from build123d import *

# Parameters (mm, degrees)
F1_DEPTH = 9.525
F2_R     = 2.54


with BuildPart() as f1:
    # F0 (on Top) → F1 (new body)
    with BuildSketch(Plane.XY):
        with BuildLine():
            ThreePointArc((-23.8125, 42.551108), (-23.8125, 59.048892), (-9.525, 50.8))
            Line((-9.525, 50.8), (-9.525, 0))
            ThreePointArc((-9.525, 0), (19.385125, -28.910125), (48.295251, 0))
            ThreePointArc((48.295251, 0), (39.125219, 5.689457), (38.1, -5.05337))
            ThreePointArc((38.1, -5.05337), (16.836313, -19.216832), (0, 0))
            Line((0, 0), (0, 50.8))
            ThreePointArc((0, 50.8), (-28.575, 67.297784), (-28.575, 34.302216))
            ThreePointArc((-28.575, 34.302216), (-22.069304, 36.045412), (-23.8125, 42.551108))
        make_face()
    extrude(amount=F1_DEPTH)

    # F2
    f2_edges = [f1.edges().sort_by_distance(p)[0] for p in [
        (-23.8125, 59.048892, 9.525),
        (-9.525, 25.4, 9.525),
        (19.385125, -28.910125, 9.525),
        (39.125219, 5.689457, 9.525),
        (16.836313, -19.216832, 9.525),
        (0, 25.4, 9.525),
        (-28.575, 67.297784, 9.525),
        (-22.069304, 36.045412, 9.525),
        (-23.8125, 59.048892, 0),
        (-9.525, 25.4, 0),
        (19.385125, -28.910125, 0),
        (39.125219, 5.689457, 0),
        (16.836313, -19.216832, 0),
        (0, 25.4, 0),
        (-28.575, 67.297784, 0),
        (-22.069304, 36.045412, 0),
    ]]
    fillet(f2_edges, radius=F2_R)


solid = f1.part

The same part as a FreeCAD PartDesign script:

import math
import FreeCAD as App
import Part
import Sketcher
from FreeCAD import Vector
Q = App.Units.Quantity


def edges_at(feature, points):
    """Names of the edges that pass closest to the given points."""
    edges = feature.Shape.Edges
    near = lambda p: min(range(len(edges)), key=lambda i: edges[i].distToShape(Part.Vertex(*p))[0])
    return sorted({f"Edge{near(p) + 1}" for p in points})

doc = App.newDocument("Part")
body = doc.addObject("PartDesign::Body", "Body")

# Sketch on XY plane
sketch1 = doc.addObject("Sketcher::SketchObject", "Sketch")
body.addObject(sketch1)
sketch1.AttachmentSupport = (doc.XY_Plane, [""])
sketch1.MapMode = "FlatFace"
sketch1.addGeometry([
    Part.ArcOfCircle(Part.Circle(Vector(-19.1, 50.8, 0), Vector(0, 0, 1), 9.5), math.radians(0), math.radians(240)),  # 0
    Part.LineSegment(Vector(-9.5, 50.8, 0), Vector(-9.5, 0, 0)),  # 1
    Part.ArcOfCircle(Part.Circle(Vector(19.4, 0, 0), Vector(0, 0, 1), 28.9), math.radians(-180), math.radians(0)),  # 2
    Part.ArcOfCircle(Part.Circle(Vector(41.9, 0, 0), Vector(0, 0, 1), 6.4), math.radians(0), math.radians(233)),  # 3
    Part.ArcOfCircle(Part.Circle(Vector(19.4, 0, 0), Vector(0, 0, 1), 19.4), math.radians(-180), math.radians(-15)),  # 4
    Part.LineSegment(Vector(0, 0, 0), Vector(0, 50.8, 0)),  # 5
    Part.ArcOfCircle(Part.Circle(Vector(-19.1, 50.8, 0), Vector(0, 0, 1), 19.1), math.radians(0), math.radians(240)),  # 6
    Part.ArcOfCircle(Part.Circle(Vector(-26.2, 38.4, 0), Vector(0, 0, 1), 4.8), math.radians(-120), math.radians(60)),  # 7
], False)
sketch1.addConstraint([
    Sketcher.Constraint("Tangent", 0, 1, 1, 1),
    Sketcher.Constraint("Tangent", 1, 2, 2, 1),
    Sketcher.Constraint("Tangent", 2, 2, 3, 1),
    Sketcher.Constraint("Coincident", 3, 2, 4, 2),
    Sketcher.Constraint("Tangent", 4, 1, 5, 1),
    Sketcher.Constraint("Tangent", 5, 2, 6, 1),
    Sketcher.Constraint("Tangent", 6, 2, 7, 1),
    Sketcher.Constraint("Tangent", 7, 2, 0, 2),
    Sketcher.Constraint("Vertical", 1),
    Sketcher.Constraint("Vertical", 5),
    Sketcher.Constraint("Coincident", 4, 1, -1, 1),
    Sketcher.Constraint("Coincident", 4, 3, 2, 3),
    Sketcher.Constraint("Coincident", 6, 3, 0, 3),
    Sketcher.Constraint("PointOnObject", 3, 3, -1),
    Sketcher.Constraint("DistanceY", 1, 2, 1, 1, Q("2 in")),
    Sketcher.Constraint("Radius", 3, Q("0.25 in")),
    Sketcher.Constraint("Radius", 6, Q("0.75 in")),
    Sketcher.Constraint("Radius", 0, Q("0.375 in")),
    Sketcher.Constraint("DistanceX", -1, 1, 3, 2, Q("1.5 in")),
    Sketcher.Constraint("DistanceX", 6, 2, 0, 1, Q("0.75 in")),
])
pad1 = doc.addObject("PartDesign::Pad", "Pad")
body.addObject(pad1)
pad1.Profile = sketch1
pad1.Length = Q("0.375 in")
doc.recompute()

fillet = doc.addObject("PartDesign::Fillet", "Fillet")
body.addObject(fillet)
fillet.Base = (pad1, edges_at(pad1, [
    (-23.813, 59.049, 9.525),
    (-9.525, 25.4, 9.525),
    (19.385, -28.91, 9.525),
    (39.125, 5.689, 9.525),
    (16.836, -19.217, 9.525),
    (0, 25.4, 9.525),
    (-28.575, 67.298, 9.525),
    (-22.069, 36.045, 9.525),
    (-23.813, 59.049, 0),
    (-9.525, 25.4, 0),
    (19.385, -28.91, 0),
    (39.125, 5.689, 0),
    (16.836, -19.217, 0),
    (0, 25.4, 0),
    (-28.575, 67.298, 0),
    (-22.069, 36.045, 0),
]))
fillet.Radius = Q("0.1 in")

doc.recompute()
